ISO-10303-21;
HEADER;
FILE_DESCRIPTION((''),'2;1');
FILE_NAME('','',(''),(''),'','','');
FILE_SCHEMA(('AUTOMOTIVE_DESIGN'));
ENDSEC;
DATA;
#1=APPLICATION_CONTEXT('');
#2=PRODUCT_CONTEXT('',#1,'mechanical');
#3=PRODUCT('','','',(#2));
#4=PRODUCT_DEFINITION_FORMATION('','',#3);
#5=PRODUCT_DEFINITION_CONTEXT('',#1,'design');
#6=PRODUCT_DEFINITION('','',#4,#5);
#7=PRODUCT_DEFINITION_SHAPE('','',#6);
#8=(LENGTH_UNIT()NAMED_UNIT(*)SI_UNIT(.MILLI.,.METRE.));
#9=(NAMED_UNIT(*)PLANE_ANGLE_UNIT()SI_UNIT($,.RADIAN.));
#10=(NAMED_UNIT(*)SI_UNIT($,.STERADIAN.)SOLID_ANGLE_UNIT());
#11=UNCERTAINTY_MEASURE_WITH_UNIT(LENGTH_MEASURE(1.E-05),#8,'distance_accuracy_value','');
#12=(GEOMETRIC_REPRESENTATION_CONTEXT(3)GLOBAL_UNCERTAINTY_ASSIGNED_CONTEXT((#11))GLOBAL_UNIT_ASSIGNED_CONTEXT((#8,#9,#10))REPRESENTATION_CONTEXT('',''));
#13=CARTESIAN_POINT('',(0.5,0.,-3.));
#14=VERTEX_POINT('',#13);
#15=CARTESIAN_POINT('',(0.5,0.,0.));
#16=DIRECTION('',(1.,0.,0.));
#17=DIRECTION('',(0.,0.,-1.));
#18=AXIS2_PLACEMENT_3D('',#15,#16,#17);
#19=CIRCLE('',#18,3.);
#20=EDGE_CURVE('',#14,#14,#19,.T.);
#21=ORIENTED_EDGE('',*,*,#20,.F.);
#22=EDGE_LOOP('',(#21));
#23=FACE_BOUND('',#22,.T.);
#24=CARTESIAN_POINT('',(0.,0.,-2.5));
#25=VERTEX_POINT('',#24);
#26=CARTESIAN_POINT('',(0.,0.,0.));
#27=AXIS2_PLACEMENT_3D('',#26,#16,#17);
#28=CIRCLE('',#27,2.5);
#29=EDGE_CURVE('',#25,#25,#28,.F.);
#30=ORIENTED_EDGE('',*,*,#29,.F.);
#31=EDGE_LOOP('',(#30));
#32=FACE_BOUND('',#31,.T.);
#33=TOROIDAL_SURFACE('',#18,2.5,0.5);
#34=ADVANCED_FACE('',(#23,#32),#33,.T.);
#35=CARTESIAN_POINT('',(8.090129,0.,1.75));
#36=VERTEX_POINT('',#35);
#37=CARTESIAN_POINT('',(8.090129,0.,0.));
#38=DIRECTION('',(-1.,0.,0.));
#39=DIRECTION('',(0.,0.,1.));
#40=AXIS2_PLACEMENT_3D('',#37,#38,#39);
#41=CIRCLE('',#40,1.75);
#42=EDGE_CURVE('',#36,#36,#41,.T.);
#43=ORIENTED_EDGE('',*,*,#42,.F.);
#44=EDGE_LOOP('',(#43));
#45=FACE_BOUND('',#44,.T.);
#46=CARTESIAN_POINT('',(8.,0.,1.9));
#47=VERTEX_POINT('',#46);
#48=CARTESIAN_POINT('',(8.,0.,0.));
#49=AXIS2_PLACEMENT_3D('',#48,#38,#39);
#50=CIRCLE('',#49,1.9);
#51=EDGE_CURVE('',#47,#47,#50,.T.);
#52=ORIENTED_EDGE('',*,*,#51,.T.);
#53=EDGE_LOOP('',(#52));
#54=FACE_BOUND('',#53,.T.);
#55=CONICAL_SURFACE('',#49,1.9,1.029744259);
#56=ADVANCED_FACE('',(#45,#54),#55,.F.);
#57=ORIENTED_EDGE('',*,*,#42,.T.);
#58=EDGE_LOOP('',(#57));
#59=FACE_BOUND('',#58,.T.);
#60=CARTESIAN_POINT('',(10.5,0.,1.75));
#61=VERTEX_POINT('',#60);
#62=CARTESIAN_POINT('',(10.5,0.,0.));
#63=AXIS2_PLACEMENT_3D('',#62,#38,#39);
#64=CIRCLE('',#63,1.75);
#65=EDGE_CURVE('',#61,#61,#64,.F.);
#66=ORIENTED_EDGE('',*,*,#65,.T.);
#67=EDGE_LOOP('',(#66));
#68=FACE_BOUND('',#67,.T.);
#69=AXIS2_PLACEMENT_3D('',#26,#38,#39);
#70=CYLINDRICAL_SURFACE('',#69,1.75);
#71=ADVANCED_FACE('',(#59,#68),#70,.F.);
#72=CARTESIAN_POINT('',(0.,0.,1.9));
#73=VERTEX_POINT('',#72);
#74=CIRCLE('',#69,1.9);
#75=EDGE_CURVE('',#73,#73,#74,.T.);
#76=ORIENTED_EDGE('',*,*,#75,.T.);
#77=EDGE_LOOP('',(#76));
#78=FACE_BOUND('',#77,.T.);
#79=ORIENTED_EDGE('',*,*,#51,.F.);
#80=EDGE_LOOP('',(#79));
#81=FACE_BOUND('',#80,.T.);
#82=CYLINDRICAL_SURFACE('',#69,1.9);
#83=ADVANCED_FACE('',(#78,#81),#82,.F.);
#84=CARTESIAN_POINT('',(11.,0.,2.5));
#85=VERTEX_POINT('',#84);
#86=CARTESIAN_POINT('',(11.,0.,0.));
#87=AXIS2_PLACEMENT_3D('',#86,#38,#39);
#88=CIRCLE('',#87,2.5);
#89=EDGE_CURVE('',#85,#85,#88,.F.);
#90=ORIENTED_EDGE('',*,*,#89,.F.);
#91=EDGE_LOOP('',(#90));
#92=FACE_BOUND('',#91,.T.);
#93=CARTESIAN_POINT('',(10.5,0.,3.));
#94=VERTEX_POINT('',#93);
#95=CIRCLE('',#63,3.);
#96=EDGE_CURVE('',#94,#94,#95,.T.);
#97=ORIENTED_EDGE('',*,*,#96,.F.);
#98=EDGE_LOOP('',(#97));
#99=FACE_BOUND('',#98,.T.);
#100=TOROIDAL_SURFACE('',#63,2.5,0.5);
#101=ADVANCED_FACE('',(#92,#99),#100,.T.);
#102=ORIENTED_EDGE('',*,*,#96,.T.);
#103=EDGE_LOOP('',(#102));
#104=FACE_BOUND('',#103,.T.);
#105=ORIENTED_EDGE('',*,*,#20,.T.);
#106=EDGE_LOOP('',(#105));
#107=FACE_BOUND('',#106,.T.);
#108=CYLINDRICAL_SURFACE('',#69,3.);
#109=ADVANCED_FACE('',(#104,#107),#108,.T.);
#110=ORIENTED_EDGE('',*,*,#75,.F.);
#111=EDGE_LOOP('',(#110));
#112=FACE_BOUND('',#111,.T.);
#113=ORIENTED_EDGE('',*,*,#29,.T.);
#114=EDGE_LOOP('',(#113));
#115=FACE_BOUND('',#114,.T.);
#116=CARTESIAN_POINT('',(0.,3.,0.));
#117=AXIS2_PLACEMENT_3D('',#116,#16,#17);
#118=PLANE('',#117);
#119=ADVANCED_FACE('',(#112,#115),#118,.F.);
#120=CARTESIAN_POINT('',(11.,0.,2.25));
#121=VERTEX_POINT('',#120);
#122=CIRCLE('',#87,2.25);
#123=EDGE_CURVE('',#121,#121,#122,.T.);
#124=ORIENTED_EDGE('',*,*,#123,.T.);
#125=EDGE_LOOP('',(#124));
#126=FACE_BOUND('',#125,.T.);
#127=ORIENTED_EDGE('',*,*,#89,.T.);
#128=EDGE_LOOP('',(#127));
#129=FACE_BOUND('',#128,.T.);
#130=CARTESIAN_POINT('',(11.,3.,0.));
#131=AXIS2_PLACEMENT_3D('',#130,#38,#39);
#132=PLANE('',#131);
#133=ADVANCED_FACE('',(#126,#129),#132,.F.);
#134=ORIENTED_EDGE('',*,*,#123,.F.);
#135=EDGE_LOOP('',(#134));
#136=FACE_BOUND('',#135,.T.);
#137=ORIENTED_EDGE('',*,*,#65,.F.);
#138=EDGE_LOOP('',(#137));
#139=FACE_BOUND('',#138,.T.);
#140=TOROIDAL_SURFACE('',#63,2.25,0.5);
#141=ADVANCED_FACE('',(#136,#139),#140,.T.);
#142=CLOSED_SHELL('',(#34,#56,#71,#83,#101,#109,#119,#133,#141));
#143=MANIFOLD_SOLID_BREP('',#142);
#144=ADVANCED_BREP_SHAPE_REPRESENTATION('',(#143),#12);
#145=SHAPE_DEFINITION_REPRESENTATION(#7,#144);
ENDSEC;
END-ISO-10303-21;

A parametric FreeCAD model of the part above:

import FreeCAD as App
import Part
import Sketcher
from FreeCAD import Vector
Q = App.Units.Quantity


def edges_at(feature, points):
    """Names of the edges that pass closest to the given points."""
    edges = feature.Shape.Edges
    near = lambda p: min(range(len(edges)), key=lambda i: edges[i].distToShape(Part.Vertex(*p))[0])
    return sorted({f"Edge{near(p) + 1}" for p in points})

doc = App.newDocument("Part")
body = doc.addObject("PartDesign::Body", "Body")

sketch1 = doc.addObject("Sketcher::SketchObject", "Sketch")
body.addObject(sketch1)
sketch1.AttachmentSupport = (doc.XY_Plane, [""])
sketch1.MapMode = "FlatFace"
sketch1.addGeometry([
    Part.LineSegment(Vector(8, 1.9, 0), Vector(8.090129, 1.75, 0)),
    Part.LineSegment(Vector(8.090129, 1.75, 0), Vector(11, 1.75, 0)),
    Part.LineSegment(Vector(11, 1.75, 0), Vector(11, 3, 0)),
    Part.LineSegment(Vector(11, 3, 0), Vector(0, 3, 0)),
    Part.LineSegment(Vector(0, 3, 0), Vector(0, 1.9, 0)),
    Part.LineSegment(Vector(0, 1.9, 0), Vector(8, 1.9, 0)),
], False)
sketch1.addConstraint([
    Sketcher.Constraint("Coincident", 0, 2, 1, 1),
    Sketcher.Constraint("Coincident", 1, 2, 2, 1),
    Sketcher.Constraint("Coincident", 2, 2, 3, 1),
    Sketcher.Constraint("Coincident", 3, 2, 4, 1),
    Sketcher.Constraint("Coincident", 4, 2, 5, 1),
    Sketcher.Constraint("Coincident", 5, 2, 0, 1),
    Sketcher.Constraint("Horizontal", 1),
    Sketcher.Constraint("Vertical", 2),
    Sketcher.Constraint("Horizontal", 3),
    Sketcher.Constraint("Vertical", 4),
    Sketcher.Constraint("Horizontal", 5),
    Sketcher.Constraint("PointOnObject", 3, 2, -2),
    Sketcher.Constraint("DistanceX", 3, 2, 3, 1, 11.0),
    Sketcher.Constraint("DistanceX", 5, 1, 5, 2, 8.0),
    Sketcher.Constraint("Angle", 0, Q("-59 deg")),
    Sketcher.Constraint("DistanceY", 4, 2, 4, 1, 1.1),
    Sketcher.Constraint("DistanceY", -1, 1, 2, 2, 3.0),
    Sketcher.Constraint("DistanceY", 2, 1, 2, 2, 1.25),
])
revolution = doc.addObject("PartDesign::Revolution", "Revolution")
body.addObject(revolution)
revolution.Profile = sketch1
revolution.ReferenceAxis = (sketch1, ["H_Axis"])
revolution.Angle = 360
doc.recompute()

fillet = doc.addObject("PartDesign::Fillet", "Fillet")
body.addObject(fillet)
fillet.Base = (revolution, edges_at(revolution, [(0, 0, -3), (11, 0, -3), (11, 0, -1.75)]))
fillet.Radius = 0.5

doc.recompute()
